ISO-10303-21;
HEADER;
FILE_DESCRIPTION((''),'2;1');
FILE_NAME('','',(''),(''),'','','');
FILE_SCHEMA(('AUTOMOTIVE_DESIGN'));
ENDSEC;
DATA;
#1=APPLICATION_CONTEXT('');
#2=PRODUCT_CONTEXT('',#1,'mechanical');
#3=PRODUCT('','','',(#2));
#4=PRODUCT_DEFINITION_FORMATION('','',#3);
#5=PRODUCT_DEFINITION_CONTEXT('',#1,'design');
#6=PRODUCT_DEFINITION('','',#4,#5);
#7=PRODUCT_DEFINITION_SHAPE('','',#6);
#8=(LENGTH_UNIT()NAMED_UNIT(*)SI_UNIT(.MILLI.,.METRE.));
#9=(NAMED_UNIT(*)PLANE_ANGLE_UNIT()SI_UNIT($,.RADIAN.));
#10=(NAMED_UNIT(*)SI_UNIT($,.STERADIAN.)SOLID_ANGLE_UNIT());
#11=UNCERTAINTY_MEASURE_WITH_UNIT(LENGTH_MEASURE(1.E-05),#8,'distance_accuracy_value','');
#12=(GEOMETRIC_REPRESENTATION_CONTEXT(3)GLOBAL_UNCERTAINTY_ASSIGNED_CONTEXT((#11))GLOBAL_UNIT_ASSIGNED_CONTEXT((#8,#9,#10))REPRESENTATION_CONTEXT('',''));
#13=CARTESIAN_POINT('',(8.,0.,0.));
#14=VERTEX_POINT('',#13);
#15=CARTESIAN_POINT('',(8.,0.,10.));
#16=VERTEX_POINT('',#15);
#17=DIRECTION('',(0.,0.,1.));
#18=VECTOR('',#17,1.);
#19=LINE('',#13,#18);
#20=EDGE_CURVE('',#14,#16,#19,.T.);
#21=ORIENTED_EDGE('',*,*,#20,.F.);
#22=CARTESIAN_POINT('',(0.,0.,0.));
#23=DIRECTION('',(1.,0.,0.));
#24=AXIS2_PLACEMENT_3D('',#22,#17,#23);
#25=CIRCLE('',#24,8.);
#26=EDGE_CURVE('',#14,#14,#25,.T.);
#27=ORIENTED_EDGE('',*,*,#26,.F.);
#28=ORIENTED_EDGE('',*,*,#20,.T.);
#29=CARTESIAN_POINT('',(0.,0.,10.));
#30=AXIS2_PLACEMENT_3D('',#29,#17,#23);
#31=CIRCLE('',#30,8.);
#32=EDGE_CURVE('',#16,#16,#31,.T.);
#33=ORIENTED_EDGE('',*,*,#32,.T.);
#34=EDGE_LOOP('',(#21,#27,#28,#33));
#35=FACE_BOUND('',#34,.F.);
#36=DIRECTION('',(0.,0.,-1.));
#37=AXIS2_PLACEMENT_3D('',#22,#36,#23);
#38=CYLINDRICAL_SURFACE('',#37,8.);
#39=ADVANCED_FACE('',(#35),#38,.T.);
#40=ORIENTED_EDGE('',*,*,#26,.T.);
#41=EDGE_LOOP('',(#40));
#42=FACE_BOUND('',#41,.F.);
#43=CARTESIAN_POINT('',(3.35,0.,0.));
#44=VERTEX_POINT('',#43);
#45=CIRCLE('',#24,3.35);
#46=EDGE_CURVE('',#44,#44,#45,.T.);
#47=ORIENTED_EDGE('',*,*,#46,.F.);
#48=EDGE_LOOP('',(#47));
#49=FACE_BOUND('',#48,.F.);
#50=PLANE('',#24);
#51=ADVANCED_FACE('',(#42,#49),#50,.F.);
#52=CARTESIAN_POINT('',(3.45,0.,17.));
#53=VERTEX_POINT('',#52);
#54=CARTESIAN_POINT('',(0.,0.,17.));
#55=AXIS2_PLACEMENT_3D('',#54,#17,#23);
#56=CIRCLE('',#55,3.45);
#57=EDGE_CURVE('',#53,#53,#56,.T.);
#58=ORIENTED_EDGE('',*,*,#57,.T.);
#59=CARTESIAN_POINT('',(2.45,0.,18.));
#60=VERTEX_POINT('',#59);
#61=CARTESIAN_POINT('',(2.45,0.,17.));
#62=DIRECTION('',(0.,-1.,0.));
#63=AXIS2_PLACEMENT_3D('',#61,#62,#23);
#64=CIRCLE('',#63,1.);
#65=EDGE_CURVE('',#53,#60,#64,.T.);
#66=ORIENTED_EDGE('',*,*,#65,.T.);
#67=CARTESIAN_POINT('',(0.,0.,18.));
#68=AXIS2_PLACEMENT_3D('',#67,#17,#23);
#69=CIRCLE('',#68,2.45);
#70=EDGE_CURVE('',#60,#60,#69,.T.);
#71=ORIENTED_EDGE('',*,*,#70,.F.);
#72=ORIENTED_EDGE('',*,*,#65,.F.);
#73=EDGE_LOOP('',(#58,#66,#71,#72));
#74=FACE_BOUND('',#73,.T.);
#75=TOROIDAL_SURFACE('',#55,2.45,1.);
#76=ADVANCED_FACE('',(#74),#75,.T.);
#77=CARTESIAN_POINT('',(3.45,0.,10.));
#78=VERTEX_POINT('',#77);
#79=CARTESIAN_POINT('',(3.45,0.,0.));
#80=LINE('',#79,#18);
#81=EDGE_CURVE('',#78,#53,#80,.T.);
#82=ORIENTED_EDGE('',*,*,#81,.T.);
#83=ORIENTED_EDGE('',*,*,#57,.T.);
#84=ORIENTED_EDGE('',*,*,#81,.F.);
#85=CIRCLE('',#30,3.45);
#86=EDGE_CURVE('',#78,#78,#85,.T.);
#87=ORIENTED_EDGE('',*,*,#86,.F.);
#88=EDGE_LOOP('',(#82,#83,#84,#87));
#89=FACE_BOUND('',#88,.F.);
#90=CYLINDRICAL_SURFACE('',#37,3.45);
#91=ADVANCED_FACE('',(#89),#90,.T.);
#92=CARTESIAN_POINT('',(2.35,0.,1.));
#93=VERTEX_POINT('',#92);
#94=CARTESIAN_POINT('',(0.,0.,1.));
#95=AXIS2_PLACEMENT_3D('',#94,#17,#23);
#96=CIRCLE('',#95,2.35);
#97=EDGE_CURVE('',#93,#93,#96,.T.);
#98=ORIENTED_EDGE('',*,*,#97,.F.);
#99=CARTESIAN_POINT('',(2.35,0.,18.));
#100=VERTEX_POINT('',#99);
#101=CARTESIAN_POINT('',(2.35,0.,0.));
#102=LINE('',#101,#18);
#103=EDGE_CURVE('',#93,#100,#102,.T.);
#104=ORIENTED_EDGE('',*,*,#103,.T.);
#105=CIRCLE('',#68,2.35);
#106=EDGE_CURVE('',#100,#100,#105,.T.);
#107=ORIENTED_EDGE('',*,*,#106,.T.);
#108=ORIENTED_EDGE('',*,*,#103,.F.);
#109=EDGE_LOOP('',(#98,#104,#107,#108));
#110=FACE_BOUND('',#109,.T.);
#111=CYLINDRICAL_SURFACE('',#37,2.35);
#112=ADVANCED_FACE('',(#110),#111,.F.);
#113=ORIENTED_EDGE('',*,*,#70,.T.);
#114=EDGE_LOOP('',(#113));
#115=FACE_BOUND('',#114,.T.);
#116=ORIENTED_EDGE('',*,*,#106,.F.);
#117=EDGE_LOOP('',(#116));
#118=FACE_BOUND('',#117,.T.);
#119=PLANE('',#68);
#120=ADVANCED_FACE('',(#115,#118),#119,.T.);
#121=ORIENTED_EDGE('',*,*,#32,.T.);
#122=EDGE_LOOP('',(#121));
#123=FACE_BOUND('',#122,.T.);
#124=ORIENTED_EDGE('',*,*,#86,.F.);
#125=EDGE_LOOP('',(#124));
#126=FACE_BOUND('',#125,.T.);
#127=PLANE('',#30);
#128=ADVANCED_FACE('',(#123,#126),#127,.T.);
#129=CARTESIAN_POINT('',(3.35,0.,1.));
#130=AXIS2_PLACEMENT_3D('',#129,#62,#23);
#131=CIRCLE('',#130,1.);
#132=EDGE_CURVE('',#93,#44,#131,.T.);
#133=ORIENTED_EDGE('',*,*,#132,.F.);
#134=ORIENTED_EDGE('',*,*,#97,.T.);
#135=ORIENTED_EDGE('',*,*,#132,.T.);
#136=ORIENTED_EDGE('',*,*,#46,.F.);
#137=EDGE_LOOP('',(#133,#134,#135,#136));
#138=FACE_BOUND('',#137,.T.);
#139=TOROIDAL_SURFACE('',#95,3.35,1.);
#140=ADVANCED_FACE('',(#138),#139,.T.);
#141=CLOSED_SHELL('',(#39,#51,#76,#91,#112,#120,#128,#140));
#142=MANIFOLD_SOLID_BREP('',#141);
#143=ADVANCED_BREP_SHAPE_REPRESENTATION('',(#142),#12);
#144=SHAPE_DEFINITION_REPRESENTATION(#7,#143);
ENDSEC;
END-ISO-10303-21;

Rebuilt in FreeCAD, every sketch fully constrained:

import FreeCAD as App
import Part
import Sketcher
from FreeCAD import Vector


def edges_at(feature, points):
    """Names of the edges that pass closest to the given points."""
    edges = feature.Shape.Edges
    near = lambda p: min(range(len(edges)), key=lambda i: edges[i].distToShape(Part.Vertex(*p))[0])
    return sorted({f"Edge{near(p) + 1}" for p in points})

doc = App.newDocument("Part")
params = doc.addObject("Spreadsheet::Sheet", "Params")
for row, (alias, value) in enumerate([
    ("sketch1_diameter", "6.9 mm"),
    ("sketch1_diameter2", "4.7 mm"),
    ("pad1_length", "18 mm"),
    ("sketch2_diameter", "16 mm"),
    ("sketch2_diameter2", "6.9 mm"),
    ("pad2_length", "10 mm"),
    ("fillet_radius", "1 mm"),
    ("fillet2_radius", "1 mm"),
], start=1):
    params.set(f"A{row}", alias)
    params.set(f"B{row}", "=" + value)
    params.setAlias(f"B{row}", alias)

body = doc.addObject("PartDesign::Body", "Body")

sketch1 = body.newObject("Sketcher::SketchObject", "Sketch")
sketch1.AttachmentSupport = (doc.getObject("XY_Plane"), [""])
sketch1.MapMode = "FlatFace"
sketch1.addGeometry([
    Part.Circle(Vector(0, 0, 0), Vector(0, 0, 1), 3.5),
    Part.Circle(Vector(0, 0, 0), Vector(0, 0, 1), 2.4),
], False)
sketch1.addConstraint([
    Sketcher.Constraint("Coincident", 0, 3, -1, 1),
    Sketcher.Constraint("Coincident", 1, 3, -1, 1),
    Sketcher.Constraint("Diameter", 0, 6.9),
    Sketcher.Constraint("Diameter", 1, 4.7),
])
sketch1.setExpression("Constraints[2]", "Params.sketch1_diameter")
sketch1.setExpression("Constraints[3]", "Params.sketch1_diameter2")
pad1 = body.newObject("PartDesign::Pad", "Pad")
pad1.Profile = sketch1
pad1.setExpression("Length", "Params.pad1_length")

sketch2 = body.newObject("Sketcher::SketchObject", "Sketch001")
sketch2.AttachmentSupport = (doc.getObject("XY_Plane"), [""])
sketch2.MapMode = "FlatFace"
sketch2.addGeometry([
    Part.Circle(Vector(0, 0, 0), Vector(0, 0, 1), 8),
    Part.Circle(Vector(0, 0, 0), Vector(0, 0, 1), 3.5),
], False)
sketch2.addConstraint([
    Sketcher.Constraint("Coincident", 0, 3, -1, 1),
    Sketcher.Constraint("Coincident", 1, 3, -1, 1),
    Sketcher.Constraint("Diameter", 0, 16.0),
    Sketcher.Constraint("Diameter", 1, 6.9),
])
sketch2.setExpression("Constraints[2]", "Params.sketch2_diameter")
sketch2.setExpression("Constraints[3]", "Params.sketch2_diameter2")
pad2 = body.newObject("PartDesign::Pad", "Pad001")
pad2.Profile = sketch2
pad2.setExpression("Length", "Params.pad2_length")
doc.recompute()

fillet = body.newObject("PartDesign::Fillet", "Fillet")
fillet.Base = (pad2, edges_at(pad2, [(-3.45, 0, 18)]))
fillet.setExpression("Radius", "Params.fillet_radius")
doc.recompute()

fillet2 = body.newObject("PartDesign::Fillet", "Fillet001")
fillet2.Base = (fillet, edges_at(fillet, [(-2.35, 0, 0)]))
fillet2.setExpression("Radius", "Params.fillet2_radius")

doc.recompute()
